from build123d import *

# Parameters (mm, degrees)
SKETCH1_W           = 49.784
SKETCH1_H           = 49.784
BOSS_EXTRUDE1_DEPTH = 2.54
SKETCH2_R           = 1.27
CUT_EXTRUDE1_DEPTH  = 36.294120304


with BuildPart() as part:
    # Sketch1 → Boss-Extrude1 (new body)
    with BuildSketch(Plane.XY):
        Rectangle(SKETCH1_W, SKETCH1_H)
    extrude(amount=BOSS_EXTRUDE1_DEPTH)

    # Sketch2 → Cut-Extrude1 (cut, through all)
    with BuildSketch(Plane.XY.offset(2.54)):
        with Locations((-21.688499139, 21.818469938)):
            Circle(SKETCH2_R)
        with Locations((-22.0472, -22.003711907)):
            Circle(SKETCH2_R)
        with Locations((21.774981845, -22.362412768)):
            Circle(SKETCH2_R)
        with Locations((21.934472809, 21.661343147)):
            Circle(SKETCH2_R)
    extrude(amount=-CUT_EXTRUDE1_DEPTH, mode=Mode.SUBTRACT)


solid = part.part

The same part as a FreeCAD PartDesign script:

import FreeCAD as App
import Part
import Sketcher
from FreeCAD import Vector
Q = App.Units.Quantity

doc = App.newDocument("Part")
params = doc.addObject("Spreadsheet::Sheet", "Params")
for row, (alias, value) in enumerate([
    ("sketch1_width", "1.96 in"),
    ("pad1_length", "0.1 in"),
    ("sketch2_diameter", "0.1 in"),
], start=1):
    params.set(f"A{row}", alias)
    params.set(f"B{row}", "=" + value)
    params.setAlias(f"B{row}", alias)

body = doc.addObject("PartDesign::Body", "Body")

# Sketch on XY plane
sketch1 = doc.addObject("Sketcher::SketchObject", "Sketch")
body.addObject(sketch1)
sketch1.AttachmentSupport = (doc.XY_Plane, [""])
sketch1.MapMode = "FlatFace"
sketch1.addGeometry(Part.LineSegment(Vector(-25, 25, 0), Vector(-25, -25, 0)), False)
sketch1.addGeometry(Part.LineSegment(Vector(-25, -25, 0), Vector(25, -25, 0)), False)
sketch1.addGeometry(Part.LineSegment(Vector(25, -25, 0), Vector(25, 25, 0)), False)
sketch1.addGeometry(Part.LineSegment(Vector(25, 25, 0), Vector(-25, 25, 0)), False)
sketch1.addConstraint(Sketcher.Constraint("Coincident", 0, 2, 1, 1))
sketch1.addConstraint(Sketcher.Constraint("Coincident", 1, 2, 2, 1))
sketch1.addConstraint(Sketcher.Constraint("Coincident", 2, 2, 3, 1))
sketch1.addConstraint(Sketcher.Constraint("Coincident", 3, 2, 0, 1))
sketch1.addConstraint(Sketcher.Constraint("Vertical", 0))
sketch1.addConstraint(Sketcher.Constraint("Horizontal", 1))
sketch1.addConstraint(Sketcher.Constraint("Vertical", 2))
sketch1.addConstraint(Sketcher.Constraint("Horizontal", 3))
sketch1.addConstraint(Sketcher.Constraint("Symmetric", 0, 2, 2, 2, -1, 1))
sketch1.addConstraint(Sketcher.Constraint("Equal", 3, 0))
sketch1.addConstraint(Sketcher.Constraint("DistanceX", 1, 1, 1, 2, Q("1.96 in")))
sketch1.setExpression("Constraints[10]", "Params.sketch1_width")
pad1 = doc.addObject("PartDesign::Pad", "Pad")
body.addObject(pad1)
pad1.Profile = sketch1
pad1.setExpression("Length", "Params.pad1_length")

# Sketch on XY plane
sketch2 = doc.addObject("Sketcher::SketchObject", "Sketch001")
body.addObject(sketch2)
sketch2.AttachmentSupport = (doc.XY_Plane, [""])
sketch2.MapMode = "FlatFace"
sketch2.AttachmentOffset = App.Placement(Vector(0, 0, 0.1 * 25.4), App.Rotation())
sketch2.addGeometry(Part.Circle(Vector(-21.7, 21.8, 0), Vector(0, 0, 1), 1.3), False)
sketch2.addGeometry(Part.Circle(Vector(-22, -22, 0), Vector(0, 0, 1), 1.3), False)
sketch2.addGeometry(Part.Circle(Vector(21.8, -22.4, 0), Vector(0, 0, 1), 1.3), False)
sketch2.addGeometry(Part.Circle(Vector(21.9, 21.7, 0), Vector(0, 0, 1), 1.3), False)
sketch2.addConstraint(Sketcher.Constraint("Equal", 0, 1))
sketch2.addConstraint(Sketcher.Constraint("Equal", 1, 2))
sketch2.addConstraint(Sketcher.Constraint("Equal", 2, 3))
sketch2.addConstraint(Sketcher.Constraint("Diameter", 0, Q("0.1 in")))
sketch2.addConstraint(Sketcher.Constraint("DistanceX", 1, 3, -1, 1, Q("0.868 in")))
sketch2.addConstraint(Sketcher.Constraint("DistanceX", 0, 3, -1, 1, Q("21.688499 mm")))
sketch2.addConstraint(Sketcher.Constraint("DistanceY", 2, 3, 1, 3, Q("0.358701 mm")))
sketch2.addConstraint(Sketcher.Constraint("DistanceY", -1, 1, 0, 3, Q("21.81847 mm")))
sketch2.addConstraint(Sketcher.Constraint("DistanceY", 1, 3, -1, 1, Q("22.003712 mm")))
sketch2.addConstraint(Sketcher.Constraint("DistanceX", -1, 1, 2, 3, Q("21.774982 mm")))
sketch2.addConstraint(Sketcher.Constraint("DistanceX", 0, 3, 3, 3, Q("43.622972 mm")))
sketch2.addConstraint(Sketcher.Constraint("DistanceY", -1, 1, 3, 3, Q("21.661343 mm")))
sketch2.setExpression("Constraints[3]", "Params.sketch2_diameter")
pocket1 = doc.addObject("PartDesign::Pocket", "Pocket")
body.addObject(pocket1)
pocket1.Profile = sketch2
pocket1.Type = "ThroughAll"

doc.recompute()
